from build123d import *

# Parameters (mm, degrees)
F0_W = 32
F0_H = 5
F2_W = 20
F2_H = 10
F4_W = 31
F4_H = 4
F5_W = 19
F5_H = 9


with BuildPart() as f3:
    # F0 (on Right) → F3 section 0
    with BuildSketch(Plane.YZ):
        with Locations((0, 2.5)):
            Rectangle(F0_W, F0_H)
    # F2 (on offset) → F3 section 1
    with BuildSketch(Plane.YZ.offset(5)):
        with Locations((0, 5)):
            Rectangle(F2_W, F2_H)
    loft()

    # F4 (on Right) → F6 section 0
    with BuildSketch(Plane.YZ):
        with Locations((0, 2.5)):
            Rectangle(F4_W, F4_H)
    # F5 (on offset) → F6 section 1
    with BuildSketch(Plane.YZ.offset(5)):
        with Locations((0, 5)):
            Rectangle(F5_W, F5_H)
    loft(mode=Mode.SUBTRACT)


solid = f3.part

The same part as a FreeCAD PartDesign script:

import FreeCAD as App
import Part
import Sketcher
from FreeCAD import Vector
Q = App.Units.Quantity


def add_polygon(sketch, points):
    """Adds a closed chain of lines whose ends are joined by coincident constraints."""
    first, n = sketch.GeometryCount, len(points)
    for a, b in zip(points, points[1:] + points[:1]):
        sketch.addGeometry(Part.LineSegment(App.Vector(*a, 0), App.Vector(*b, 0)), False)
    for i in range(n):
        sketch.addConstraint(Sketcher.Constraint("Coincident", first + i, 2, first + (i + 1) % n, 1))

doc = App.newDocument("Part")
body = doc.addObject("PartDesign::Body", "Body")

sketch1 = body.newObject("Sketcher::SketchObject", "Sketch")
sketch1.AttachmentSupport = (doc.getObject("YZ_Plane"), [""])
sketch1.MapMode = "FlatFace"
add_polygon(sketch1, [(-16, 5), (-16, 0), (16, 0), (16, 5)])
sketch1.addConstraint(Sketcher.Constraint("Vertical", 0))
sketch1.addConstraint(Sketcher.Constraint("Horizontal", 1))
sketch1.addConstraint(Sketcher.Constraint("Vertical", 2))
sketch1.addConstraint(Sketcher.Constraint("Horizontal", 3))
sketch1.addConstraint(Sketcher.Constraint("Symmetric", 0, 2, 1, 2, -1, 1))
sketch1.addConstraint(Sketcher.Constraint("DistanceX", 1, 1, 1, 2, Q("32 mm")))
sketch1.addConstraint(Sketcher.Constraint("DistanceY", 0, 2, 0, 1, Q("5 mm")))

sketch2 = body.newObject("Sketcher::SketchObject", "Sketch001")
sketch2.AttachmentSupport = (doc.getObject("YZ_Plane"), [""])
sketch2.MapMode = "FlatFace"
sketch2.AttachmentOffset = App.Placement(Vector(0, 0, 5), App.Rotation())
add_polygon(sketch2, [(-10, 10), (-10, 0), (10, 0), (10, 10)])
sketch2.addConstraint(Sketcher.Constraint("Vertical", 0))
sketch2.addConstraint(Sketcher.Constraint("Horizontal", 1))
sketch2.addConstraint(Sketcher.Constraint("Vertical", 2))
sketch2.addConstraint(Sketcher.Constraint("Horizontal", 3))
sketch2.addConstraint(Sketcher.Constraint("Symmetric", 0, 2, 1, 2, -1, 1))
sketch2.addConstraint(Sketcher.Constraint("DistanceX", 1, 1, 1, 2, Q("20 mm")))
sketch2.addConstraint(Sketcher.Constraint("DistanceY", 0, 2, 0, 1, Q("10 mm")))

additiveloft = body.newObject("PartDesign::AdditiveLoft", "AdditiveLoft")
additiveloft.Profile = sketch1
additiveloft.Sections = [sketch2]

sketch3 = body.newObject("Sketcher::SketchObject", "Sketch002")
sketch3.AttachmentSupport = (doc.getObject("YZ_Plane"), [""])
sketch3.MapMode = "FlatFace"
add_polygon(sketch3, [(-15.5, 4.5), (-15.5, 0.5), (15.5, 0.5), (15.5, 4.5)])
sketch3.addConstraint(Sketcher.Constraint("Vertical", 0))
sketch3.addConstraint(Sketcher.Constraint("Horizontal", 1))
sketch3.addConstraint(Sketcher.Constraint("Vertical", 2))
sketch3.addConstraint(Sketcher.Constraint("Horizontal", 3))
sketch3.addConstraint(Sketcher.Constraint("DistanceX", 1, 1, 1, 2, Q("31 mm")))
sketch3.addConstraint(Sketcher.Constraint("DistanceY", 0, 2, 0, 1, Q("4 mm")))
sketch3.addConstraint(Sketcher.Constraint("DistanceX", 0, 2, -1, 1, Q("15.5 mm")))
sketch3.addConstraint(Sketcher.Constraint("DistanceY", -1, 1, 0, 2, Q("0.5 mm")))

sketch4 = body.newObject("Sketcher::SketchObject", "Sketch003")
sketch4.AttachmentSupport = (doc.getObject("YZ_Plane"), [""])
sketch4.MapMode = "FlatFace"
sketch4.AttachmentOffset = App.Placement(Vector(0, 0, 5), App.Rotation())
add_polygon(sketch4, [(-10, 10), (-10, 0), (10, 0), (10, 10)])
sketch4.addConstraint(Sketcher.Constraint("Vertical", 0))
sketch4.addConstraint(Sketcher.Constraint("Horizontal", 1))
sketch4.addConstraint(Sketcher.Constraint("Vertical", 2))
sketch4.addConstraint(Sketcher.Constraint("Horizontal", 3))
sketch4.addConstraint(Sketcher.Constraint("DistanceX", 1, 1, 1, 2, Q("19 mm")))
sketch4.addConstraint(Sketcher.Constraint("DistanceY", 0, 2, 0, 1, Q("9 mm")))
sketch4.addConstraint(Sketcher.Constraint("DistanceX", 0, 2, -1, 1, Q("9.5 mm")))
sketch4.addConstraint(Sketcher.Constraint("DistanceY", -1, 1, 0, 2, Q("0.5 mm")))

subtractiveloft = body.newObject("PartDesign::SubtractiveLoft", "SubtractiveLoft")
subtractiveloft.Profile = sketch3
subtractiveloft.Sections = [sketch4]

doc.recompute()
